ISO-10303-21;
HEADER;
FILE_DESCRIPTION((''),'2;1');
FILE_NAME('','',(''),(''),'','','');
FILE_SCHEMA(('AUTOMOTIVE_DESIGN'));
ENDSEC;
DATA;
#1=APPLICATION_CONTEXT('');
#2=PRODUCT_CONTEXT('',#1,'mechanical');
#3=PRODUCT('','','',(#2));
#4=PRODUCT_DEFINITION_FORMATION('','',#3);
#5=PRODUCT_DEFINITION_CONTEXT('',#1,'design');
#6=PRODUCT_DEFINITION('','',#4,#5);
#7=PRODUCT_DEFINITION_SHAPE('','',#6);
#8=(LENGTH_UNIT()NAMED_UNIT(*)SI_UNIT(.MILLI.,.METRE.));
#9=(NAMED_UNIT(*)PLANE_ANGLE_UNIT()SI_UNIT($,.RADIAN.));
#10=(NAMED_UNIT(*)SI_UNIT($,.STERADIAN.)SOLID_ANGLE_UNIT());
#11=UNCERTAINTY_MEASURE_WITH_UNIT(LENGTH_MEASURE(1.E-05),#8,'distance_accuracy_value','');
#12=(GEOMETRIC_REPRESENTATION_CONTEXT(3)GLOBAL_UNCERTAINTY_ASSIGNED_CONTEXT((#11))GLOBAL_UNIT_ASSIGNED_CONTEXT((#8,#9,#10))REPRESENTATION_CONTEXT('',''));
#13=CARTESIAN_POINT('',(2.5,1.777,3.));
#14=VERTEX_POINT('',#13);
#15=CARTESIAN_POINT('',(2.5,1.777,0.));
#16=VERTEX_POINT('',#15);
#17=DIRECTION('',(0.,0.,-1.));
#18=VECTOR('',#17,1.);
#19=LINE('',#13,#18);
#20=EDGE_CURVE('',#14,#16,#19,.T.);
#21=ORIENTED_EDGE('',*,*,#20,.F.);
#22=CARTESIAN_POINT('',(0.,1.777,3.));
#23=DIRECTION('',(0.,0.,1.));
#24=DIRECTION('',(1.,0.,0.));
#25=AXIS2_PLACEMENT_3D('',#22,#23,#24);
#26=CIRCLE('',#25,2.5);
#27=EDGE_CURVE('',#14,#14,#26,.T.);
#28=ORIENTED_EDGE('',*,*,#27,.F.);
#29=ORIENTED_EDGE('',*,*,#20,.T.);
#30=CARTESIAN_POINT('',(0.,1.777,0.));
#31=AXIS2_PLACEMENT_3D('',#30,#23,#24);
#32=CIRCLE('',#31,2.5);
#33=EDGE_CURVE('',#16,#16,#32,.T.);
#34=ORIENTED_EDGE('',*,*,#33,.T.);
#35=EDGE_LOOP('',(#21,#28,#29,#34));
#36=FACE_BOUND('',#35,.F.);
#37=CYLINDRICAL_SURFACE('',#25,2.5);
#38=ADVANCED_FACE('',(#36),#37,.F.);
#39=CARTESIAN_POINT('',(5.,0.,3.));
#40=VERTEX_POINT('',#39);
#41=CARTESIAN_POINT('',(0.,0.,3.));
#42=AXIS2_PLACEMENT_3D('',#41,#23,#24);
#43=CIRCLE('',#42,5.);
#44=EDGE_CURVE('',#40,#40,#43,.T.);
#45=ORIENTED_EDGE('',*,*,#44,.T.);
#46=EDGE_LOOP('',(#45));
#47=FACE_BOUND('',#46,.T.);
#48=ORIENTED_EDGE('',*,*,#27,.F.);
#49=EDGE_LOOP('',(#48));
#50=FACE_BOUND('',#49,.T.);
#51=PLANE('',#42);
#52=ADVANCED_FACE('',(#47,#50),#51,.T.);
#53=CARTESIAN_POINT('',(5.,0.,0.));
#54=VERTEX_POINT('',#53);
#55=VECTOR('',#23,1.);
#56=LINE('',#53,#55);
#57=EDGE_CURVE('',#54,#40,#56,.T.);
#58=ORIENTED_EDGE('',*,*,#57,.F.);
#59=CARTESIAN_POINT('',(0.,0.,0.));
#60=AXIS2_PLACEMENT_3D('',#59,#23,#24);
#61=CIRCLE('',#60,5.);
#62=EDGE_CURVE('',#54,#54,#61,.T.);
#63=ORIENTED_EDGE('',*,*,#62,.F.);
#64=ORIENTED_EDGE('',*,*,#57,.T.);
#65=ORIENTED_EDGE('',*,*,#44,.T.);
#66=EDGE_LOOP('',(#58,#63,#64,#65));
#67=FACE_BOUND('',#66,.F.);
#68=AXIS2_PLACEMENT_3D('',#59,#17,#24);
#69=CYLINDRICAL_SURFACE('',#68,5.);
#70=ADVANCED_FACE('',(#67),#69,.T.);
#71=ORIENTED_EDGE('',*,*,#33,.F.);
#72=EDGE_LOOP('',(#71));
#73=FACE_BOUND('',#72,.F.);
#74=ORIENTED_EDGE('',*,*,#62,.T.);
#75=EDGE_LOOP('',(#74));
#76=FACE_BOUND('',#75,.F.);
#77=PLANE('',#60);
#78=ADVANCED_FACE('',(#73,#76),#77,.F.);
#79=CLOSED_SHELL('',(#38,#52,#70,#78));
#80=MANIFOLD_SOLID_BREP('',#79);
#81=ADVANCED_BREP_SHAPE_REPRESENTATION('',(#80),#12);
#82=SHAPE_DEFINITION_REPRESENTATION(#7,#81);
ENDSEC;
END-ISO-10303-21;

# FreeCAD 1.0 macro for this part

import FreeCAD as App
import Part
import Sketcher
from FreeCAD import Vector

doc = App.newDocument("Part")
params = doc.addObject("Spreadsheet::Sheet", "Params")
for row, (alias, value) in enumerate([
    ("sketch1_diameter", "10 mm"),
    ("pad1_length", "3 mm"),
    ("sketch2_diameter", "5 mm"),
    ("pocket1_length", "3 mm"),
], start=1):
    params.set(f"A{row}", alias)
    params.set(f"B{row}", "=" + value)
    params.setAlias(f"B{row}", alias)

body = doc.addObject("PartDesign::Body", "Body")

sketch1 = body.newObject("Sketcher::SketchObject", "Sketch")
sketch1.AttachmentSupport = (doc.getObject("XY_Plane"), [""])
sketch1.MapMode = "FlatFace"
sketch1.addGeometry(Part.Circle(Vector(0, 0, 0), Vector(0, 0, 1), 5), False)
sketch1.addConstraint([
    Sketcher.Constraint("Coincident", 0, 3, -1, 1),
    Sketcher.Constraint("Diameter", 0, 10.0),
])
sketch1.setExpression("Constraints[1]", "Params.sketch1_diameter")
pad1 = body.newObject("PartDesign::Pad", "Pad")
pad1.Profile = sketch1
pad1.setExpression("Length", "Params.pad1_length")

sketch2 = body.newObject("Sketcher::SketchObject", "Sketch001")
sketch2.AttachmentSupport = (doc.getObject("XY_Plane"), [""])
sketch2.MapMode = "FlatFace"
sketch2.AttachmentOffset = App.Placement(Vector(0, 0, 3), App.Rotation())
sketch2.addGeometry(Part.Circle(Vector(0, 1.777, 0), Vector(0, 0, 1), 2.5), False)
sketch2.addConstraint([
    Sketcher.Constraint("PointOnObject", 0, 3, -2),
    Sketcher.Constraint("Diameter", 0, 5.0),
    Sketcher.Constraint("DistanceY", -1, 1, 0, 3, 1.777),
])
sketch2.setExpression("Constraints[1]", "Params.sketch2_diameter")
pocket1 = body.newObject("PartDesign::Pocket", "Pocket")
pocket1.Profile = sketch2
pocket1.setExpression("Length", "Params.pocket1_length")

doc.recompute()
